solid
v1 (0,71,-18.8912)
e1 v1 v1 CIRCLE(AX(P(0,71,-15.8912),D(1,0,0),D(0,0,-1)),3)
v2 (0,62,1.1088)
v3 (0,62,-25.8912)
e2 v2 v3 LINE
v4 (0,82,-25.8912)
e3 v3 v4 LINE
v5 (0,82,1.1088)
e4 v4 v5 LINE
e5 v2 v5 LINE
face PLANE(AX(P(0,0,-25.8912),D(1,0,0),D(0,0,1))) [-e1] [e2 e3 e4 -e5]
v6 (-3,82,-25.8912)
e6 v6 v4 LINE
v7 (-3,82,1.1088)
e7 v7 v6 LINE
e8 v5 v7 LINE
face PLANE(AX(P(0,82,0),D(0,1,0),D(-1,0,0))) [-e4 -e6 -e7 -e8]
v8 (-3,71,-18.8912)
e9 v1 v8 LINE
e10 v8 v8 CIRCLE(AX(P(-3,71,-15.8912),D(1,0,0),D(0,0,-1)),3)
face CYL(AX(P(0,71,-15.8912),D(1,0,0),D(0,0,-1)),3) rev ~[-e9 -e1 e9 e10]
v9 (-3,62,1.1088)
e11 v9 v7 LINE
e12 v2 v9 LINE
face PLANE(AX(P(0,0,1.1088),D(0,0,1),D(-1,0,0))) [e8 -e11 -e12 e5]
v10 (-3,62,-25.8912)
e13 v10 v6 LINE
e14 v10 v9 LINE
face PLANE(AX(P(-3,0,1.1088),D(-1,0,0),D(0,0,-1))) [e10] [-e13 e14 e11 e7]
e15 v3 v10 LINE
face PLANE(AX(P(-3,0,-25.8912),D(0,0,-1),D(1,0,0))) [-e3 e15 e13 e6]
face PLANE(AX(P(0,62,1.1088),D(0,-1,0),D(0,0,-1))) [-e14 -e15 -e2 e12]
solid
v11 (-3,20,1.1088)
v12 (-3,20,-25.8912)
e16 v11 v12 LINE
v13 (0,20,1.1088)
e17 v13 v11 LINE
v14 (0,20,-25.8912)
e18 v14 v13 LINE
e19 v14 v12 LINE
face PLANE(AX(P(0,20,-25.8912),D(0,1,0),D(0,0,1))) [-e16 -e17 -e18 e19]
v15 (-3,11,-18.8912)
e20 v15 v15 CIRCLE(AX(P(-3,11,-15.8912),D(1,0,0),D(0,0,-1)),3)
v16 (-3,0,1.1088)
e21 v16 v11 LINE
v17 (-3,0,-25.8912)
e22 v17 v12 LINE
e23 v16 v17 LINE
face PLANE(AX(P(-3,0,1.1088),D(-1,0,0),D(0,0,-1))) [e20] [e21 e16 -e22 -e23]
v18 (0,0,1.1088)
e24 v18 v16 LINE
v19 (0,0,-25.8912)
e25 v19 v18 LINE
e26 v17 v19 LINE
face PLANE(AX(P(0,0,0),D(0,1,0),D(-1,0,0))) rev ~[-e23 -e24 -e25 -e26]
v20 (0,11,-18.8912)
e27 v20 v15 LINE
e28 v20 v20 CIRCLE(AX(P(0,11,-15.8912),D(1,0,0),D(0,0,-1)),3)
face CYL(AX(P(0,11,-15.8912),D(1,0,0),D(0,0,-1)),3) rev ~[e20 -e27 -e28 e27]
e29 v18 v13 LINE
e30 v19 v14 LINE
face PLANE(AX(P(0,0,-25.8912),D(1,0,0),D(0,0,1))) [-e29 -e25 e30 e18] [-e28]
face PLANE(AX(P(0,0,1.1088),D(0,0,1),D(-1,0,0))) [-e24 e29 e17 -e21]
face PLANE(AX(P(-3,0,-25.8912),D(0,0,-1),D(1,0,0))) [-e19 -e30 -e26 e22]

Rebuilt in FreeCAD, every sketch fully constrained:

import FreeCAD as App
import Part
import Sketcher

V = App.Vector
Q = App.Units.Quantity


def add_polygon(sketch, points):
    """Adds a closed chain of lines whose ends are joined by coincident constraints."""
    first, n = sketch.GeometryCount, len(points)
    for a, b in zip(points, points[1:] + points[:1]):
        sketch.addGeometry(Part.LineSegment(App.Vector(*a, 0), App.Vector(*b, 0)), False)
    for i in range(n):
        sketch.addConstraint(Sketcher.Constraint("Coincident", first + i, 2, first + (i + 1) % n, 1))

doc = App.newDocument("Part")
body = doc.addObject("PartDesign::Body", "Body")
body.AllowCompound = True

sketch1 = body.newObject("Sketcher::SketchObject", "Sketch")
sketch1.AttachmentSupport = (doc.getObject("XZ_Plane"), [""])
sketch1.MapMode = "FlatFace"
add_polygon(sketch1, [(-3, 1.1088), (0, 1.1088), (0, -25.8912), (-3, -25.8912)])
sketch1.addConstraint(Sketcher.Constraint("Horizontal", 0))
sketch1.addConstraint(Sketcher.Constraint("Vertical", 1))
sketch1.addConstraint(Sketcher.Constraint("Horizontal", 2))
sketch1.addConstraint(Sketcher.Constraint("Vertical", 3))
sketch1.addConstraint(Sketcher.Constraint("PointOnObject", 0, 2, -2))
sketch1.addConstraint(Sketcher.Constraint("DistanceX", 0, 1, 0, 2, Q("3 mm")))
sketch1.addConstraint(Sketcher.Constraint("DistanceY", 1, 2, 1, 1, Q("27 mm")))
sketch1.addConstraint(Sketcher.Constraint("DistanceY", -1, 1, 0, 2, Q("1.1088 mm")))
pad1 = body.newObject("PartDesign::Pad", "Pad")
pad1.Profile = sketch1
pad1.Length = 82
pad1.Reversed = True

sketch2 = body.newObject("Sketcher::SketchObject", "Sketch001")
sketch2.AttachmentSupport = (doc.getObject("YZ_Plane"), [""])
sketch2.MapMode = "FlatFace"
add_polygon(sketch2, [(20, 1.1088), (20, -25.8912), (62, -25.8912), (62, 1.1088)])
sketch2.addConstraint(Sketcher.Constraint("Vertical", 0))
sketch2.addConstraint(Sketcher.Constraint("Horizontal", 1))
sketch2.addConstraint(Sketcher.Constraint("Vertical", 2))
sketch2.addConstraint(Sketcher.Constraint("Horizontal", 3))
sketch2.addConstraint(Sketcher.Constraint("DistanceX", 1, 1, 1, 2, Q("42 mm")))
sketch2.addConstraint(Sketcher.Constraint("DistanceX", -1, 1, 0, 2, Q("20 mm")))
sketch2.addConstraint(Sketcher.Constraint("DistanceY", 0, 2, 0, 1, Q("27 mm")))
sketch2.addConstraint(Sketcher.Constraint("DistanceY", 0, 2, -1, 1, Q("25.8912 mm")))
pocket1 = body.newObject("PartDesign::Pocket", "Pocket")
pocket1.Profile = sketch2
pocket1.Length = 42

sketch3 = body.newObject("Sketcher::SketchObject", "Sketch002")
sketch3.AttachmentSupport = (doc.getObject("YZ_Plane"), [""])
sketch3.MapMode = "FlatFace"
sketch3.addGeometry(Part.Circle(V(71, -15.8912, 0), V(0, 0, 1), 3), False)
sketch3.addGeometry(Part.Circle(V(11, -15.8912, 0), V(0, 0, 1), 3), False)
sketch3.addConstraint(Sketcher.Constraint("Equal", 0, 1))
sketch3.addConstraint(Sketcher.Constraint("Horizontal", 0, 3, 1, 3))
sketch3.addConstraint(Sketcher.Constraint("Diameter", 0, Q("6 mm")))
sketch3.addConstraint(Sketcher.Constraint("DistanceX", -1, 1, 0, 3, Q("71 mm")))
sketch3.addConstraint(Sketcher.Constraint("DistanceX", -1, 1, 1, 3, Q("11 mm")))
sketch3.addConstraint(Sketcher.Constraint("DistanceY", 0, 3, -1, 1, Q("15.8912 mm")))
pocket2 = body.newObject("PartDesign::Pocket", "Pocket001")
pocket2.Profile = sketch3
pocket2.Length = 42

doc.recompute()
